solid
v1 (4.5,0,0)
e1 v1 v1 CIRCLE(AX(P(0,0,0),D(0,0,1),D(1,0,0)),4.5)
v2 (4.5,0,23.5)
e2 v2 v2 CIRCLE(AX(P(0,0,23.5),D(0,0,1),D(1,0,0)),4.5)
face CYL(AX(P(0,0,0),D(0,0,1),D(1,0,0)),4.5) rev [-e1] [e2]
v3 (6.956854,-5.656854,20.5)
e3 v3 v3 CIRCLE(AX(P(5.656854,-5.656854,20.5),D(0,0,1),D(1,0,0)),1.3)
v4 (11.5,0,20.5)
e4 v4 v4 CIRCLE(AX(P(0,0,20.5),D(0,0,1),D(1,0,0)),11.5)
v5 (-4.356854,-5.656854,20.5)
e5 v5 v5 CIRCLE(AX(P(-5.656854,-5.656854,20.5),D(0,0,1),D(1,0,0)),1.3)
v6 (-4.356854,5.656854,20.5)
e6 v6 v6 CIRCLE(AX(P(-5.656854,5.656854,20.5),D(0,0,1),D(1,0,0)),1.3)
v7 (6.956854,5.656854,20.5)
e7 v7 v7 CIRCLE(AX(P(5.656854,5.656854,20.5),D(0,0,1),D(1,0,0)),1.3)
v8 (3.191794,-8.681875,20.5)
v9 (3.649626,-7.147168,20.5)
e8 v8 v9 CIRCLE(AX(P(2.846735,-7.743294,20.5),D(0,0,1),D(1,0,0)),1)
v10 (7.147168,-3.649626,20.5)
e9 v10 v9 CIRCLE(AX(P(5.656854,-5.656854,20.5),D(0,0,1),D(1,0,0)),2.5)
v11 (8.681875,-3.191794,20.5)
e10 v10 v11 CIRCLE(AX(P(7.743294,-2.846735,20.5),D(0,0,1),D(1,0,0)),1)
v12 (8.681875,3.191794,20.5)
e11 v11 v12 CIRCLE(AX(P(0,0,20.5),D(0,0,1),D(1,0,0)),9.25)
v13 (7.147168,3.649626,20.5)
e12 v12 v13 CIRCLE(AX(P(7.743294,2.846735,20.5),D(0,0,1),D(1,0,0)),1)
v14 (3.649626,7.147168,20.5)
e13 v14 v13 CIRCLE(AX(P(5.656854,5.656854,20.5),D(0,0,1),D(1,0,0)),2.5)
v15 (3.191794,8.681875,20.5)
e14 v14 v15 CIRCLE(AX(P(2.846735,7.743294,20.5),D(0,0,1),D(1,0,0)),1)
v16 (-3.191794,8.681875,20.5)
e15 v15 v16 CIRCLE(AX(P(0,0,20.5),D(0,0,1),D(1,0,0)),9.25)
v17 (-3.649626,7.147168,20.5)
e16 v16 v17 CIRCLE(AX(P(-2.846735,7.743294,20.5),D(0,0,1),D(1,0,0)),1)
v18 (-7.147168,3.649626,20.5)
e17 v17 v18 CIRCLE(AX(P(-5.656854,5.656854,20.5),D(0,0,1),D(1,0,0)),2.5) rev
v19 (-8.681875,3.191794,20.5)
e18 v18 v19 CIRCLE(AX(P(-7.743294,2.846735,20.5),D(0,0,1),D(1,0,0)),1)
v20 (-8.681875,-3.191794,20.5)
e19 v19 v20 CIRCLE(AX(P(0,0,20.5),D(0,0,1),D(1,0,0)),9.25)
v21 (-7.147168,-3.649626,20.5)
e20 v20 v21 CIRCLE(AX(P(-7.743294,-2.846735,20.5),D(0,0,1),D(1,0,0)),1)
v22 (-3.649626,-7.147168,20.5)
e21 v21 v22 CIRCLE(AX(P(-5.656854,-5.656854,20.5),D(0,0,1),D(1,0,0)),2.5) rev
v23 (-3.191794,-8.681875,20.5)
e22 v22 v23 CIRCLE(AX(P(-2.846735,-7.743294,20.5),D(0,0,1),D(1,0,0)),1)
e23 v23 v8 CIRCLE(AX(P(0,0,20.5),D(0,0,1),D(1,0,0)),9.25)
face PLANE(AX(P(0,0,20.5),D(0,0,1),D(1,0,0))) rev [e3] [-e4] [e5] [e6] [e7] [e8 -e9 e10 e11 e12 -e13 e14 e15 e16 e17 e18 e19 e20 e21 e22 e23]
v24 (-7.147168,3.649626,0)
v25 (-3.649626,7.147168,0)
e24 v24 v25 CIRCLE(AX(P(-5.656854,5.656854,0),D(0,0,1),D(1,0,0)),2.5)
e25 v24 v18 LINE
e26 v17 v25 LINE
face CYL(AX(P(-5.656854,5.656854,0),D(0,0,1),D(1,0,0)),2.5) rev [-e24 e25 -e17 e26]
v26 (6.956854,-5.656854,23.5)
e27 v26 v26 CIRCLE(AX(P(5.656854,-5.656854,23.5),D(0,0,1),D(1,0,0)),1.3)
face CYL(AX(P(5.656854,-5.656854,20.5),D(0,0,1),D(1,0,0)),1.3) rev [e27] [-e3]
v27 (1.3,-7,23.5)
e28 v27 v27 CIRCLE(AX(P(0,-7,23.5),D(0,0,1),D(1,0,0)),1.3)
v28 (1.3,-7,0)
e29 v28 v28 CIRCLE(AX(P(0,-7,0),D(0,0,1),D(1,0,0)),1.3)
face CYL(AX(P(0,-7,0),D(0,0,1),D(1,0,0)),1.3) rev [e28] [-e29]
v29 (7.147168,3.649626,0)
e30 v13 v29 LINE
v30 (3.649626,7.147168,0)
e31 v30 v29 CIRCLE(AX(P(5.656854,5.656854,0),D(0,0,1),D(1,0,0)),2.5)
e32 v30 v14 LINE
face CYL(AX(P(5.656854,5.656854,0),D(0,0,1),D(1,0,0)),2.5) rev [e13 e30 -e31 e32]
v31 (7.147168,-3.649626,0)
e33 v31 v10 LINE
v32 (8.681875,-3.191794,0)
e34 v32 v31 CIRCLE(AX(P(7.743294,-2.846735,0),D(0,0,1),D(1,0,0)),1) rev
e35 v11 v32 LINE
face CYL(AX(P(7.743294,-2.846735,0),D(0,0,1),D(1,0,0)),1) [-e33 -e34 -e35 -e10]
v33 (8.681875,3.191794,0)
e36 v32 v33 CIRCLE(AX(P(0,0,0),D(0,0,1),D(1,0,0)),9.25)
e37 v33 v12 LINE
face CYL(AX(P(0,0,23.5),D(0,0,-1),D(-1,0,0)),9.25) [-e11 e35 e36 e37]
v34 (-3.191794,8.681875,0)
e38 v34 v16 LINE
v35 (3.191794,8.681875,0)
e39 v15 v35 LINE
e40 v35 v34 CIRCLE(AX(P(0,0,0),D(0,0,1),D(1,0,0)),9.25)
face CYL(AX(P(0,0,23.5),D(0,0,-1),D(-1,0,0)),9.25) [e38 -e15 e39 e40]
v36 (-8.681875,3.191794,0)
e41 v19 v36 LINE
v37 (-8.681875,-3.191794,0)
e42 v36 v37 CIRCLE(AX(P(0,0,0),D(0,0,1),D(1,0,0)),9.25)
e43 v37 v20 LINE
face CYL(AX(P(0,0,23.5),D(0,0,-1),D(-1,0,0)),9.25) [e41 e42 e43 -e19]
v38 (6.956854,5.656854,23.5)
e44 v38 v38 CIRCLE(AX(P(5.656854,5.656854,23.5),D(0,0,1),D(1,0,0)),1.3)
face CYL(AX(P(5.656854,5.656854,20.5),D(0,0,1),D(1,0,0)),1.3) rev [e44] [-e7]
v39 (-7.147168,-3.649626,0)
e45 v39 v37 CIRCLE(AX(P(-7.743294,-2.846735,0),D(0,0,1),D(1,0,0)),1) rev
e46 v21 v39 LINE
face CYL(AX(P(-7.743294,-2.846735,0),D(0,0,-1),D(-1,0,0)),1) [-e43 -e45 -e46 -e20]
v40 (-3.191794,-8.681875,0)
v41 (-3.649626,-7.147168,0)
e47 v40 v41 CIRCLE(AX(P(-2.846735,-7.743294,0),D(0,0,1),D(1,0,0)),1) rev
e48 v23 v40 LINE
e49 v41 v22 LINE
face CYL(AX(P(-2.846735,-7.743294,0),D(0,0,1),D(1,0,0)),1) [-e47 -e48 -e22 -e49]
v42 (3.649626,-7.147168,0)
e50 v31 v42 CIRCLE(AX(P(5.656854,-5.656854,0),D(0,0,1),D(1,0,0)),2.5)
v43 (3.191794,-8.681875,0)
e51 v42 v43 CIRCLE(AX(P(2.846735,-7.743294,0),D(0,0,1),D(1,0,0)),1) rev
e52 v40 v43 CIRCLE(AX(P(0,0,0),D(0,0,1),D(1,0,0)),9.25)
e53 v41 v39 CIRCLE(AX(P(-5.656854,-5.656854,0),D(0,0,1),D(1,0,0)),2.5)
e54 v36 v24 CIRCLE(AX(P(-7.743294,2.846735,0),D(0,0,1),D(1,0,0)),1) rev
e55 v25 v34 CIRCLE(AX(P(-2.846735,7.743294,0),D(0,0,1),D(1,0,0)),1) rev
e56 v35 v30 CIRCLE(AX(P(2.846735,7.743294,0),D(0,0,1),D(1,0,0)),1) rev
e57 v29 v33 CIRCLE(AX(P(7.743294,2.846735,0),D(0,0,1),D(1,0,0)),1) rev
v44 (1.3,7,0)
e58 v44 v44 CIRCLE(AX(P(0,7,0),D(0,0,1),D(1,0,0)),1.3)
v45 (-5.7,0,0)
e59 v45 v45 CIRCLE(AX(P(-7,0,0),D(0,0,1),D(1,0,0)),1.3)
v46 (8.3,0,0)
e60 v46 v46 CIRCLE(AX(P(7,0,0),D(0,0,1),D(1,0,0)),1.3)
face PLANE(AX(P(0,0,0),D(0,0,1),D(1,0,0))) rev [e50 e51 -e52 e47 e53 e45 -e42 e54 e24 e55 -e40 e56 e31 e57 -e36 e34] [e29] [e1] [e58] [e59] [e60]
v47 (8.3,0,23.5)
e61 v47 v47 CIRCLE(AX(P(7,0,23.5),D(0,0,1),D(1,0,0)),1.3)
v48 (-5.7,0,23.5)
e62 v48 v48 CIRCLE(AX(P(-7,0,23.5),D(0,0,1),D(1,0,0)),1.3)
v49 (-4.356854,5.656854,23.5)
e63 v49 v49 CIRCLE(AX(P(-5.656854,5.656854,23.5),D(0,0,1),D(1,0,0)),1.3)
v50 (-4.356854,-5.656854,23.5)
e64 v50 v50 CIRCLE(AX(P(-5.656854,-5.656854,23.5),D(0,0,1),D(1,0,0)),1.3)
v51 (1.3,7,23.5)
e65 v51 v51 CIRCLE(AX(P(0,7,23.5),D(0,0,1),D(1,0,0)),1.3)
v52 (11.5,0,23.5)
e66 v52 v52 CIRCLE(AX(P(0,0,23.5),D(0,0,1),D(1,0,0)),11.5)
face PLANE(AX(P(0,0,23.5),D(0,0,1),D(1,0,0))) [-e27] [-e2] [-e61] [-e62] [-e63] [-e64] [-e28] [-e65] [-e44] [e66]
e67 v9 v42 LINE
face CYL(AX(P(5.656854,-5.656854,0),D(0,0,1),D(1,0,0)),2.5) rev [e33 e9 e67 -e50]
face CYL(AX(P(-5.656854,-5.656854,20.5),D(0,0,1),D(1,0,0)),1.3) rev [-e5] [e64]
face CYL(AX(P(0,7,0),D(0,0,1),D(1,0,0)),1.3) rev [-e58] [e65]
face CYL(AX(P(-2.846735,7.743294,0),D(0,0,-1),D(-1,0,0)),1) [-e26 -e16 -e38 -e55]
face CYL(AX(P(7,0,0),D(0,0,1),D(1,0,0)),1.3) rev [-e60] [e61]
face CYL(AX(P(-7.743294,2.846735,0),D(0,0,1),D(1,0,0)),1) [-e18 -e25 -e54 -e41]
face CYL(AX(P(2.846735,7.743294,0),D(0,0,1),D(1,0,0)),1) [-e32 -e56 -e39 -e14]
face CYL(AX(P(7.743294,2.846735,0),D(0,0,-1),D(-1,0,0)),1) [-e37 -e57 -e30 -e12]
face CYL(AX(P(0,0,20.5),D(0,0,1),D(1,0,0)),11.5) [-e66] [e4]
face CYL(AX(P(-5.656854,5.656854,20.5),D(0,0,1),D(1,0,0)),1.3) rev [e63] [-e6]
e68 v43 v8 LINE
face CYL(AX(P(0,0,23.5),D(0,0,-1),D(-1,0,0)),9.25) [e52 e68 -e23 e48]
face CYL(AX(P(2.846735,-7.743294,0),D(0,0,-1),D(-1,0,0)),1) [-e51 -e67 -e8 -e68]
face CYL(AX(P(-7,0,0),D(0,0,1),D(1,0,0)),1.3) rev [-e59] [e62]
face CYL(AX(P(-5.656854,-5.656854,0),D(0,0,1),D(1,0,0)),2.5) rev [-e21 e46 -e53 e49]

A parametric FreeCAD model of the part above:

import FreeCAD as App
import Part
import Sketcher

V = App.Vector


def edges_at(feature, points):
    """Names of the edges that pass closest to the given points."""
    edges = feature.Shape.Edges
    near = lambda p: min(range(len(edges)), key=lambda i: edges[i].distToShape(Part.Vertex(*p))[0])
    return sorted({f"Edge{near(p) + 1}" for p in points})

doc = App.newDocument("Part")
params = doc.addObject("Spreadsheet::Sheet", "Params")
for row, (alias, value) in enumerate([
    ("sketch1_diameter", "18.5 mm"),
    ("pad1_length", "23.5 mm"),
    ("sketch2_diameter", "2.6 mm"),
    ("sketch3_diameter", "9 mm"),
    ("sketch4_diameter", "23 mm"),
    ("sketch4_diameter2", "18.5 mm"),
    ("pad2_length", "3 mm"),
    ("sketch5_diameter", "5 mm"),
    ("sketch6_diameter", "5 mm"),
    ("sketch6_diameter2", "2.6 mm"),
    ("pad3_length", "3 mm"),
    ("fillet_radius", "1 mm"),
], start=1):
    params.set(f"A{row}", alias)
    params.set(f"B{row}", "=" + value)
    params.setAlias(f"B{row}", alias)

body = doc.addObject("PartDesign::Body", "Body")

# Sketch on XY plane
sketch1 = body.newObject("Sketcher::SketchObject", "Sketch")
sketch1.AttachmentSupport = (doc.getObject("XY_Plane"), [""])
sketch1.MapMode = "FlatFace"
sketch1.addGeometry(Part.Circle(V(0, 0, 0), V(0, 0, 1), 9), False)
sketch1.addConstraint([
    Sketcher.Constraint("Coincident", 0, 3, -1, 1),
    Sketcher.Constraint("Diameter", 0, 18.5),
])
sketch1.setExpression("Constraints[1]", "Params.sketch1_diameter")
pad1 = body.newObject("PartDesign::Pad", "Pad")
pad1.Profile = sketch1
pad1.setExpression("Length", "Params.pad1_length")

# Sketch on XY plane
sketch2 = body.newObject("Sketcher::SketchObject", "Sketch001")
sketch2.AttachmentSupport = (doc.getObject("XY_Plane"), [""])
sketch2.MapMode = "FlatFace"
sketch2.AttachmentOffset = App.Placement(V(0, 0, 23.5), App.Rotation())
sketch2.addGeometry([
    Part.Circle(V(7, 0, 0), V(0, 0, 1), 1.3),
    Part.Circle(V(0, -7, 0), V(0, 0, 1), 1.3),
    Part.Circle(V(-7, 0, 0), V(0, 0, 1), 1.3),
    Part.Circle(V(0, 7, 0), V(0, 0, 1), 1.3),
], False)
sketch2.addConstraint([
    Sketcher.Constraint("Equal", 0, 1),
    Sketcher.Constraint("Equal", 1, 2),
    Sketcher.Constraint("Equal", 2, 3),
    Sketcher.Constraint("Symmetric", 0, 3, 2, 3, -1, 1),
    Sketcher.Constraint("Symmetric", 1, 3, 3, 3, -1, 1),
    Sketcher.Constraint("PointOnObject", 0, 3, -1),
    Sketcher.Constraint("PointOnObject", 1, 3, -2),
    Sketcher.Constraint("Diameter", 0, 2.6),
    Sketcher.Constraint("DistanceX", -1, 1, 0, 3, 7.0),
    Sketcher.Constraint("DistanceY", 1, 3, -1, 1, 7.0),
])
sketch2.setExpression("Constraints[7]", "Params.sketch2_diameter")
pocket1 = body.newObject("PartDesign::Pocket", "Pocket")
pocket1.Profile = sketch2
pocket1.Type = "ThroughAll"
pocket1.Midplane = True

# Sketch on XY plane
sketch3 = body.newObject("Sketcher::SketchObject", "Sketch002")
sketch3.AttachmentSupport = (doc.getObject("XY_Plane"), [""])
sketch3.MapMode = "FlatFace"
sketch3.AttachmentOffset = App.Placement(V(0, 0, 23.5), App.Rotation())
sketch3.addGeometry(Part.Circle(V(0, 0, 0), V(0, 0, 1), 4.5), False)
sketch3.addConstraint([
    Sketcher.Constraint("Coincident", 0, 3, -1, 1),
    Sketcher.Constraint("Diameter", 0, 9.0),
])
sketch3.setExpression("Constraints[1]", "Params.sketch3_diameter")
pocket2 = body.newObject("PartDesign::Pocket", "Pocket001")
pocket2.Profile = sketch3
pocket2.Type = "ThroughAll"
pocket2.Midplane = True

# Sketch on XY plane
sketch4 = body.newObject("Sketcher::SketchObject", "Sketch003")
sketch4.AttachmentSupport = (doc.getObject("XY_Plane"), [""])
sketch4.MapMode = "FlatFace"
sketch4.AttachmentOffset = App.Placement(V(0, 0, 23.5), App.Rotation())
sketch4.addGeometry([
    Part.Circle(V(0, 0, 0), V(0, 0, 1), 12),
    Part.Circle(V(0, 0, 0), V(0, 0, 1), 9),
], False)
sketch4.addConstraint([
    Sketcher.Constraint("Coincident", 0, 3, -1, 1),
    Sketcher.Constraint("Coincident", 1, 3, -1, 1),
    Sketcher.Constraint("Diameter", 0, 23.0),
    Sketcher.Constraint("Diameter", 1, 18.5),
])
sketch4.setExpression("Constraints[2]", "Params.sketch4_diameter")
sketch4.setExpression("Constraints[3]", "Params.sketch4_diameter2")
pad2 = body.newObject("PartDesign::Pad", "Pad001")
pad2.Profile = sketch4
pad2.setExpression("Length", "Params.pad2_length")
pad2.Reversed = True

# Sketch on XY plane
sketch5 = body.newObject("Sketcher::SketchObject", "Sketch004")
sketch5.AttachmentSupport = (doc.getObject("XY_Plane"), [""])
sketch5.MapMode = "FlatFace"
sketch5.AttachmentOffset = App.Placement(V(0, 0, 23.5), App.Rotation())
sketch5.addGeometry([
    Part.Circle(V(5.7, 5.7, 0), V(0, 0, 1), 2.5),
    Part.Circle(V(5.7, -5.7, 0), V(0, 0, 1), 2.5),
    Part.Circle(V(-5.7, -5.7, 0), V(0, 0, 1), 2.5),
    Part.Circle(V(-5.7, 5.7, 0), V(0, 0, 1), 2.5),
], False)
sketch5.addConstraint([
    Sketcher.Constraint("Equal", 0, 1),
    Sketcher.Constraint("Equal", 1, 2),
    Sketcher.Constraint("Equal", 2, 3),
    Sketcher.Constraint("Symmetric", 0, 3, 2, 3, -1, 1),
    Sketcher.Constraint("Symmetric", 1, 3, 3, 3, -1, 1),
    Sketcher.Constraint("Symmetric", 1, 3, 2, 3, -2),
    Sketcher.Constraint("Diameter", 0, 5.0),
    Sketcher.Constraint("DistanceY", 1, 3, 0, 3, 11.313708),
    Sketcher.Constraint("DistanceX", 2, 3, 1, 3, 11.313708),
])
sketch5.setExpression("Constraints[6]", "Params.sketch5_diameter")
pocket3 = body.newObject("PartDesign::Pocket", "Pocket002")
pocket3.Profile = sketch5
pocket3.Type = "ThroughAll"
pocket3.Midplane = True

# Sketch on XY plane
sketch6 = body.newObject("Sketcher::SketchObject", "Sketch005")
sketch6.AttachmentSupport = (doc.getObject("XY_Plane"), [""])
sketch6.MapMode = "FlatFace"
sketch6.AttachmentOffset = App.Placement(V(0, 0, 20.5), App.Rotation())
sketch6.addGeometry([
    Part.Circle(V(-5.7, 5.7, 0), V(0, 0, 1), 2.5),  # 0
    Part.Circle(V(-5.7, 5.7, 0), V(0, 0, 1), 1.3),  # 1
    Part.Circle(V(5.7, 5.7, 0), V(0, 0, 1), 2.5),  # 2
    Part.Circle(V(5.7, 5.7, 0), V(0, 0, 1), 1.3),  # 3
    Part.Circle(V(5.7, -5.7, 0), V(0, 0, 1), 2.5),  # 4
    Part.Circle(V(5.7, -5.7, 0), V(0, 0, 1), 1.3),  # 5
    Part.Circle(V(-5.7, -5.7, 0), V(0, 0, 1), 2.5),  # 6
    Part.Circle(V(-5.7, -5.7, 0), V(0, 0, 1), 1.3),  # 7
], False)
sketch6.addConstraint([
    Sketcher.Constraint("Coincident", 1, 3, 0, 3),
    Sketcher.Constraint("Coincident", 3, 3, 2, 3),
    Sketcher.Constraint("Coincident", 5, 3, 4, 3),
    Sketcher.Constraint("Coincident", 7, 3, 6, 3),
    Sketcher.Constraint("Equal", 0, 2),
    Sketcher.Constraint("Equal", 1, 3),
    Sketcher.Constraint("Equal", 2, 4),
    Sketcher.Constraint("Equal", 3, 5),
    Sketcher.Constraint("Equal", 4, 6),
    Sketcher.Constraint("Equal", 5, 7),
    Sketcher.Constraint("Symmetric", 0, 3, 4, 3, -1, 1),
    Sketcher.Constraint("Symmetric", 2, 3, 6, 3, -1, 1),
    Sketcher.Constraint("Symmetric", 0, 3, 2, 3, -2),
    Sketcher.Constraint("Diameter", 0, 5.0),
    Sketcher.Constraint("Diameter", 1, 2.6),
    Sketcher.Constraint("DistanceX", 0, 3, 2, 3, 11.313708),
    Sketcher.Constraint("DistanceY", 4, 3, 2, 3, 11.313708),
])
sketch6.setExpression("Constraints[13]", "Params.sketch6_diameter")
sketch6.setExpression("Constraints[14]", "Params.sketch6_diameter2")
pad3 = body.newObject("PartDesign::Pad", "Pad002")
pad3.Profile = sketch6
pad3.setExpression("Length", "Params.pad3_length")
doc.recompute()

fillet = body.newObject("PartDesign::Fillet", "Fillet")
fillet.Base = (pad3, edges_at(pad3, [
    (7.967, 4.7, 10.25),
    (4.7, 7.967, 10.25),
    (4.7, -7.967, 10.25),
    (7.967, -4.7, 10.25),
    (-7.967, -4.7, 10.25),
    (-4.7, -7.967, 10.25),
    (-4.7, 7.967, 10.25),
    (-7.967, 4.7, 10.25),
]))
fillet.setExpression("Radius", "Params.fillet_radius")

doc.recompute()
